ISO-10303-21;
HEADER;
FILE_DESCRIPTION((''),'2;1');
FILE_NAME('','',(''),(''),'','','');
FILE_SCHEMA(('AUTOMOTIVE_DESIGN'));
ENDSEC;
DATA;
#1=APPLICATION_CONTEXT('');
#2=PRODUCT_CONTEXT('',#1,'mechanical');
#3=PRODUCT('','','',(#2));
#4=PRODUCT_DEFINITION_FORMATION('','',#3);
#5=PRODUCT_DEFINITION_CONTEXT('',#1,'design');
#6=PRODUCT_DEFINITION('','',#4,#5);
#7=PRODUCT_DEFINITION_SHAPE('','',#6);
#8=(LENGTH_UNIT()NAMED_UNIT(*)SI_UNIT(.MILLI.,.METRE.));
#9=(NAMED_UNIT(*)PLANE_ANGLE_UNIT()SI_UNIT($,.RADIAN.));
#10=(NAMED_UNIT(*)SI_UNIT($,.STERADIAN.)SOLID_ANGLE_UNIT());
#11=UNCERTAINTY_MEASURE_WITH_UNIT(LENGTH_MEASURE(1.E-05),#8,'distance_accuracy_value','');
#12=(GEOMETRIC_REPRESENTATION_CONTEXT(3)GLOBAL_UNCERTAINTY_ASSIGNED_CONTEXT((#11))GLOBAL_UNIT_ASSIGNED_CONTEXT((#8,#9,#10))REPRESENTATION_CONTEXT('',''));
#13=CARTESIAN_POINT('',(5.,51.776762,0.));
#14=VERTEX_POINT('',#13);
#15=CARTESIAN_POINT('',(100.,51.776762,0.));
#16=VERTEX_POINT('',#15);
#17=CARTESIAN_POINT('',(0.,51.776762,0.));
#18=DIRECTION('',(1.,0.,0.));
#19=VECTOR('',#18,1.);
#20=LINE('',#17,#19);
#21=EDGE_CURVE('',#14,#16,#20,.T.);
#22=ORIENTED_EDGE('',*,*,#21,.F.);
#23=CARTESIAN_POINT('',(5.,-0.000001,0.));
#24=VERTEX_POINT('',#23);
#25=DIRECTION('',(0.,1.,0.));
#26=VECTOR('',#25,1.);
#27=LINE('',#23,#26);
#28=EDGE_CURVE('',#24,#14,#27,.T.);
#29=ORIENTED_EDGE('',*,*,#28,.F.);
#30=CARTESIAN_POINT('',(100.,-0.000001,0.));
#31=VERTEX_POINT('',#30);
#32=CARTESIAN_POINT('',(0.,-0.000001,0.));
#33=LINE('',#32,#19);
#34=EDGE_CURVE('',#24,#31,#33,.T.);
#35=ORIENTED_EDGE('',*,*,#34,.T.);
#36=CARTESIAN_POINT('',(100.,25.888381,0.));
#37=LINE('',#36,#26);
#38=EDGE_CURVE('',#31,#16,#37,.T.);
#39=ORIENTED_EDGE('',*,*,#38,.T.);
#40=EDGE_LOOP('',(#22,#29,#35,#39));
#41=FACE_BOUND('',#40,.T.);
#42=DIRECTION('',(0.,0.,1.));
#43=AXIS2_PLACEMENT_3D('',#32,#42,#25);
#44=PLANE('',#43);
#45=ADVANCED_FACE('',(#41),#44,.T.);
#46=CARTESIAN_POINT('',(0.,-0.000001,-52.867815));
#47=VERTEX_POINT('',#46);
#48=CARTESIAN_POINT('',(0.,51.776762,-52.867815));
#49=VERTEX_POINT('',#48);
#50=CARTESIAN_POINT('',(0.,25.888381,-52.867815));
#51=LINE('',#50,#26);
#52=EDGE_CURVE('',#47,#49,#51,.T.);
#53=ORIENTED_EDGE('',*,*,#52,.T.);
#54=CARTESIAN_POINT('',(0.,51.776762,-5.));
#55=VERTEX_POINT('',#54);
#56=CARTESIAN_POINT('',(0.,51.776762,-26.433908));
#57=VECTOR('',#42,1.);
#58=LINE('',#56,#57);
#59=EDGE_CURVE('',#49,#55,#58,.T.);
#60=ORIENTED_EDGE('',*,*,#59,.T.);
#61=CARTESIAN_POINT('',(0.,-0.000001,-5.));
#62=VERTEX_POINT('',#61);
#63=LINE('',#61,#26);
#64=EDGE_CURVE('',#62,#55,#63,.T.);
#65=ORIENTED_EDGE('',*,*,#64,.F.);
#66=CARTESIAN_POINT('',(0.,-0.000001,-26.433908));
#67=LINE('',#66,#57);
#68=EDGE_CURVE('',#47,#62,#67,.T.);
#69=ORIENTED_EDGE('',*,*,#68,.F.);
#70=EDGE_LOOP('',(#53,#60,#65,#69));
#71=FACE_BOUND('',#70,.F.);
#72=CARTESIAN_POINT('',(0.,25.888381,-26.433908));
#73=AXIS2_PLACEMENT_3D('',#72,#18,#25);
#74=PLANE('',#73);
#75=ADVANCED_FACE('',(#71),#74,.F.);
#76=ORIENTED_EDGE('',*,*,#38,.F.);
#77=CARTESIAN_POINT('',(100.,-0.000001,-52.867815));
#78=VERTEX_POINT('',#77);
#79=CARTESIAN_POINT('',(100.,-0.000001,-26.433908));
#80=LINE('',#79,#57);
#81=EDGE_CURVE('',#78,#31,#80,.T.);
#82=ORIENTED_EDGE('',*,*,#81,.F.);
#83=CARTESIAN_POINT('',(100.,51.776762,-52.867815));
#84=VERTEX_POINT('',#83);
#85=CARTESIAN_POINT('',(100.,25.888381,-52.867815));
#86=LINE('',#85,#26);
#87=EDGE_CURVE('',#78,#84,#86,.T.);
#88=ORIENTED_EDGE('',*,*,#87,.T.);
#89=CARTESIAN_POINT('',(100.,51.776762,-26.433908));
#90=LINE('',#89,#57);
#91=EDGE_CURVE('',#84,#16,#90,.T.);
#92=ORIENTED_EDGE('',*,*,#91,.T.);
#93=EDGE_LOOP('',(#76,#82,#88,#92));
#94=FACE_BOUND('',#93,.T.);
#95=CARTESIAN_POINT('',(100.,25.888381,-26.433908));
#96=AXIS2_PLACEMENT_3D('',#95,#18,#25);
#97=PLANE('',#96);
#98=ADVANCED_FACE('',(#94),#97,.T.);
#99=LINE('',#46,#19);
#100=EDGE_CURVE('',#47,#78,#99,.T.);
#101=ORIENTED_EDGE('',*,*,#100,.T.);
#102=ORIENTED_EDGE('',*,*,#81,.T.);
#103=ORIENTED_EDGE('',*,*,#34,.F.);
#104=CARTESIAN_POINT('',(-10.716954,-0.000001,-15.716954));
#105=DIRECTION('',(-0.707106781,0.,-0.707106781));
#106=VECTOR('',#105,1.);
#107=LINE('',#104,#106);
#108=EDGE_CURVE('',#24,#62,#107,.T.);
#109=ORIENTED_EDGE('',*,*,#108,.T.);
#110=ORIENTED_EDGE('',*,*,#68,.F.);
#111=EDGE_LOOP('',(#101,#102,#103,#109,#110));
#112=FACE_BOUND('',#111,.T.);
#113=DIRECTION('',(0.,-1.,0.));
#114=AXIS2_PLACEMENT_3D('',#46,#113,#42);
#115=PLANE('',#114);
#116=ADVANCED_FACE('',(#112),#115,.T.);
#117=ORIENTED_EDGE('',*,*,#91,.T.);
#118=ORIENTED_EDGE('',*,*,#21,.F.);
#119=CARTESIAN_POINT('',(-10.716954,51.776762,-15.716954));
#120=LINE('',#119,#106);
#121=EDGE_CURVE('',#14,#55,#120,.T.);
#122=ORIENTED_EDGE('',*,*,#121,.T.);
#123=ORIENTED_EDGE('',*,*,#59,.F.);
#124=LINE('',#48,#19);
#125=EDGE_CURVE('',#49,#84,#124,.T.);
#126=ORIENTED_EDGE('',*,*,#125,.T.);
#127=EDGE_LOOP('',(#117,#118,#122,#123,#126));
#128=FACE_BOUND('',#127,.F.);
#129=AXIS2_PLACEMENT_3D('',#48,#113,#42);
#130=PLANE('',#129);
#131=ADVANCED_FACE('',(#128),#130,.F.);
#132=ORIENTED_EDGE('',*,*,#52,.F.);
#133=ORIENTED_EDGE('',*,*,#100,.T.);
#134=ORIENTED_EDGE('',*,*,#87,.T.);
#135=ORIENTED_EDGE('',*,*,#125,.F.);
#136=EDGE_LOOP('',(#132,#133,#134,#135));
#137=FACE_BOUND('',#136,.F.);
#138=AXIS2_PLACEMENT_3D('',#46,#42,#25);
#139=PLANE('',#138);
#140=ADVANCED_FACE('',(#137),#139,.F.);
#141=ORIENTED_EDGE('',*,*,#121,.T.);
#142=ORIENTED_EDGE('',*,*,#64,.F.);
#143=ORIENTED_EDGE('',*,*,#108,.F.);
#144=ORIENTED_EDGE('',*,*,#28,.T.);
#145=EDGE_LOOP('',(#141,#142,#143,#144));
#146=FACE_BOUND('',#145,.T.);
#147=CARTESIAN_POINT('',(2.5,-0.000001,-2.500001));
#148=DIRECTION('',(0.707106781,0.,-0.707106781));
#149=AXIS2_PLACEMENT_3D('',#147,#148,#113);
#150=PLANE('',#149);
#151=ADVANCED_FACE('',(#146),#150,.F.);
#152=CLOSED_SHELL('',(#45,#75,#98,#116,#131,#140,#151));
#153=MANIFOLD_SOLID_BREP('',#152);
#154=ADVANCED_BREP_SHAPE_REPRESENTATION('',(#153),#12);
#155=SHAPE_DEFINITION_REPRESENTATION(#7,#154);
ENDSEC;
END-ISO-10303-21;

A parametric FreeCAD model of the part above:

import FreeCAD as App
import Part
import Sketcher
from FreeCAD import Vector
Q = App.Units.Quantity


def edges_at(feature, points):
    """Names of the edges that pass closest to the given points."""
    edges = feature.Shape.Edges
    near = lambda p: min(range(len(edges)), key=lambda i: edges[i].distToShape(Part.Vertex(*p))[0])
    return sorted({f"Edge{near(p) + 1}" for p in points})

doc = App.newDocument("Part")
body = doc.addObject("PartDesign::Body", "Body")

sketch1 = body.newObject("Sketcher::SketchObject", "Sketch")
sketch1.AttachmentSupport = (doc.getObject("YZ_Plane"), [""])
sketch1.MapMode = "FlatFace"
sketch1.addGeometry(Part.LineSegment(Vector(0, 0, 0), Vector(0, -52.867815, 0)), False)
sketch1.addGeometry(Part.LineSegment(Vector(0, -52.867815, 0), Vector(51.776762, -52.867815, 0)), False)
sketch1.addGeometry(Part.LineSegment(Vector(51.776762, -52.867815, 0), Vector(51.776762, 0, 0)), False)
sketch1.addGeometry(Part.LineSegment(Vector(51.776762, 0, 0), Vector(0, 0, 0)), False)
sketch1.addConstraint(Sketcher.Constraint("Coincident", 0, 2, 1, 1))
sketch1.addConstraint(Sketcher.Constraint("Coincident", 1, 2, 2, 1))
sketch1.addConstraint(Sketcher.Constraint("Coincident", 2, 2, 3, 1))
sketch1.addConstraint(Sketcher.Constraint("Coincident", 3, 2, 0, 1))
sketch1.addConstraint(Sketcher.Constraint("Vertical", 0))
sketch1.addConstraint(Sketcher.Constraint("Horizontal", 1))
sketch1.addConstraint(Sketcher.Constraint("Vertical", 2))
sketch1.addConstraint(Sketcher.Constraint("Horizontal", 3))
sketch1.addConstraint(Sketcher.Constraint("Coincident", 3, 2, -1, 1))
sketch1.addConstraint(Sketcher.Constraint("DistanceX", 1, 1, 1, 2, Q("51.776763 mm")))
sketch1.addConstraint(Sketcher.Constraint("DistanceY", 0, 2, 0, 1, Q("52.867815 mm")))
pad1 = body.newObject("PartDesign::Pad", "Pad")
pad1.Profile = sketch1
pad1.Length = 100
doc.recompute()

chamfer = body.newObject("PartDesign::Chamfer", "Chamfer")
chamfer.Base = (pad1, edges_at(pad1, [(0, 25.888, 0)]))
chamfer.Size = 5

doc.recompute()
